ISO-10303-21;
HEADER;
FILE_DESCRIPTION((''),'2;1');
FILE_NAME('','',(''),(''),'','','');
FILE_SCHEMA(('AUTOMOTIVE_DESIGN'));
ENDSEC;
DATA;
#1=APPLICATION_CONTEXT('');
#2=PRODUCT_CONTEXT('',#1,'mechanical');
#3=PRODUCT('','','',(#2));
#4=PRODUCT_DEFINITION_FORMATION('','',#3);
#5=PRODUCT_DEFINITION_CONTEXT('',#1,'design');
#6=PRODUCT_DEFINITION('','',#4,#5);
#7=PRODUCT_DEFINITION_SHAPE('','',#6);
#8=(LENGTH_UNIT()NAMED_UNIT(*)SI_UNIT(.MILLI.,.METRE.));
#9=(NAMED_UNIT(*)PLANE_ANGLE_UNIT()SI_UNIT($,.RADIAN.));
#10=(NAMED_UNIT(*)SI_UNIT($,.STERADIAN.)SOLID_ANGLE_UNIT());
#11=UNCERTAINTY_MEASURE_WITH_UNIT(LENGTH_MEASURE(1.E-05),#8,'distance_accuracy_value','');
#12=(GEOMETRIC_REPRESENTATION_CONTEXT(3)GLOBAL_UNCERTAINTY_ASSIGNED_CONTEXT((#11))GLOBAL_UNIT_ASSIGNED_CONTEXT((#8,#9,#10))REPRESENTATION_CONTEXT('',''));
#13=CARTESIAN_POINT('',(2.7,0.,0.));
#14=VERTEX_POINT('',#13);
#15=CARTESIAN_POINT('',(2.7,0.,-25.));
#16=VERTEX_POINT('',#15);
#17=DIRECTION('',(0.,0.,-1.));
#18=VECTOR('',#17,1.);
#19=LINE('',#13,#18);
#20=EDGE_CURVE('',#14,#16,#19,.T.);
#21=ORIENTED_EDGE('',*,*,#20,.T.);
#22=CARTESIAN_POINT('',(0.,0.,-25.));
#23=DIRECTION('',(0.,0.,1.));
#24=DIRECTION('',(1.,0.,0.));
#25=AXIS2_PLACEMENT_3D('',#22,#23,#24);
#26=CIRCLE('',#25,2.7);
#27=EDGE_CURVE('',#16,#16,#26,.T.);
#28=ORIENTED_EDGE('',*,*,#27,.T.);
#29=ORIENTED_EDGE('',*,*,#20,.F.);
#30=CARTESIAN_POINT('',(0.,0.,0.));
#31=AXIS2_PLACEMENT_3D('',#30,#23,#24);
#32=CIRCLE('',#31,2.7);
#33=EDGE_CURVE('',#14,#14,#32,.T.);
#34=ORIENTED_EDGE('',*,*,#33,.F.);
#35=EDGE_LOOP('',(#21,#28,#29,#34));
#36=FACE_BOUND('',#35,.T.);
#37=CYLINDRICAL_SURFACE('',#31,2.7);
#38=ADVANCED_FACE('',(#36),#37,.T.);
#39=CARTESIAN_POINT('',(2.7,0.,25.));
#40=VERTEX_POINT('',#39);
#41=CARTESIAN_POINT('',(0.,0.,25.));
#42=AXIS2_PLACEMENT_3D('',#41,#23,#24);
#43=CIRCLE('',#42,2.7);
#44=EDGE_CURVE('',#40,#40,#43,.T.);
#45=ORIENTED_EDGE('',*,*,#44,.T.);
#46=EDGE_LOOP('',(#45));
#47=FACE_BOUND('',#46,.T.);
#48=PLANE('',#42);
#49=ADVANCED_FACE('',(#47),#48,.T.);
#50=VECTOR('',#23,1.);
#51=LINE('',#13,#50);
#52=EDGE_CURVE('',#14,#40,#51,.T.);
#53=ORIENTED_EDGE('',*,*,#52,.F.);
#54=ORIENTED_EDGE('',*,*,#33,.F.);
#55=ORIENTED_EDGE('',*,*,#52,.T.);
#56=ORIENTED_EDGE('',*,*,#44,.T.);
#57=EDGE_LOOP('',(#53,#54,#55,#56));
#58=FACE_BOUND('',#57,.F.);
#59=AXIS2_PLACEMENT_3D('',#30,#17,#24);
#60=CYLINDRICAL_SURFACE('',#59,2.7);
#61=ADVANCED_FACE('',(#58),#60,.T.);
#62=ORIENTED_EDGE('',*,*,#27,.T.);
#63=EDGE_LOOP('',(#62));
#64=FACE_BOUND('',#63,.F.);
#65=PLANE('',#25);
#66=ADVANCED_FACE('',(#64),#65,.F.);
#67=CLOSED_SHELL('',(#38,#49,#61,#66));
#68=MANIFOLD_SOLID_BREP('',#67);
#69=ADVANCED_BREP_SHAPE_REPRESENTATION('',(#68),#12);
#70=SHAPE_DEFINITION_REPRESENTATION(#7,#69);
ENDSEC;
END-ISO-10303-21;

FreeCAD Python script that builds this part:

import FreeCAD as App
import Part
import Sketcher

V = App.Vector

doc = App.newDocument("Part")
params = doc.addObject("Spreadsheet::Sheet", "Params")
for row, (alias, value) in enumerate([
    ("sketch1_diameter", "5.4 mm"),
    ("pad1_length", "50 mm"),
], start=1):
    params.set(f"A{row}", alias)
    params.set(f"B{row}", "=" + value)
    params.setAlias(f"B{row}", alias)

body = doc.addObject("PartDesign::Body", "Body")

# Sketch on XY plane
sketch1 = body.newObject("Sketcher::SketchObject", "Sketch")
sketch1.AttachmentSupport = (doc.getObject("XY_Plane"), [""])
sketch1.MapMode = "FlatFace"
sketch1.addGeometry(Part.Circle(V(0, 0, 0), V(0, 0, 1), 2.7), False)
sketch1.addConstraint([
    Sketcher.Constraint("Coincident", 0, 3, -1, 1),
    Sketcher.Constraint("Diameter", 0, 5.4),
])
sketch1.setExpression("Constraints[1]", "Params.sketch1_diameter")
pad1 = body.newObject("PartDesign::Pad", "Pad")
pad1.Profile = sketch1
pad1.setExpression("Length", "Params.pad1_length")
pad1.Midplane = True

doc.recompute()
